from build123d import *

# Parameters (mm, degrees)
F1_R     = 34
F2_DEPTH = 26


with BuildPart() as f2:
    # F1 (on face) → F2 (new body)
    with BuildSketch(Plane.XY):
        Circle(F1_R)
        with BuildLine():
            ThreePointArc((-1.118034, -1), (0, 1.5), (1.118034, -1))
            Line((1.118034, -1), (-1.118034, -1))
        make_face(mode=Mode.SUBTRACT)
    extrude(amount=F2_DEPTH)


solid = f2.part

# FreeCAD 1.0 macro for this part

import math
import FreeCAD as App
import Part
import Sketcher
from FreeCAD import Vector

doc = App.newDocument("Part")
params = doc.addObject("Spreadsheet::Sheet", "Params")
for row, (alias, value) in enumerate([
    ("sketch1_diameter", "68 mm"),
    ("sketch1_radius", "1.5 mm"),
    ("pad1_length", "26 mm"),
], start=1):
    params.set(f"A{row}", alias)
    params.set(f"B{row}", "=" + value)
    params.setAlias(f"B{row}", alias)

body = doc.addObject("PartDesign::Body", "Body")

# Sketch on XY plane
sketch1 = doc.addObject("Sketcher::SketchObject", "Sketch")
body.addObject(sketch1)
sketch1.AttachmentSupport = (doc.XY_Plane, [""])
sketch1.MapMode = "FlatFace"
sketch1.addGeometry([
    Part.Circle(Vector(0, 0, 0), Vector(0, 0, 1), 34),
    Part.LineSegment(Vector(1.1, -1, 0), Vector(-1.1, -1, 0)),
    Part.ArcOfCircle(Part.Circle(Vector(0, 0, 0), Vector(0, 0, 1), 1.5), math.radians(-42), math.radians(222)),
], False)
sketch1.addConstraint([
    Sketcher.Constraint("Coincident", 1, 1, 2, 1),
    Sketcher.Constraint("Coincident", 2, 2, 1, 2),
    Sketcher.Constraint("Horizontal", 1),
    Sketcher.Constraint("Coincident", 0, 3, -1, 1),
    Sketcher.Constraint("Coincident", 2, 3, -1, 1),
    Sketcher.Constraint("Diameter", 0, 68.0),
    Sketcher.Constraint("Radius", 2, 1.5),
    Sketcher.Constraint("DistanceY", 1, 1, -1, 1, 1.0),
])
sketch1.setExpression("Constraints[5]", "Params.sketch1_diameter")
sketch1.setExpression("Constraints[6]", "Params.sketch1_radius")
pad1 = doc.addObject("PartDesign::Pad", "Pad")
body.addObject(pad1)
pad1.Profile = sketch1
pad1.setExpression("Length", "Params.pad1_length")

doc.recompute()
